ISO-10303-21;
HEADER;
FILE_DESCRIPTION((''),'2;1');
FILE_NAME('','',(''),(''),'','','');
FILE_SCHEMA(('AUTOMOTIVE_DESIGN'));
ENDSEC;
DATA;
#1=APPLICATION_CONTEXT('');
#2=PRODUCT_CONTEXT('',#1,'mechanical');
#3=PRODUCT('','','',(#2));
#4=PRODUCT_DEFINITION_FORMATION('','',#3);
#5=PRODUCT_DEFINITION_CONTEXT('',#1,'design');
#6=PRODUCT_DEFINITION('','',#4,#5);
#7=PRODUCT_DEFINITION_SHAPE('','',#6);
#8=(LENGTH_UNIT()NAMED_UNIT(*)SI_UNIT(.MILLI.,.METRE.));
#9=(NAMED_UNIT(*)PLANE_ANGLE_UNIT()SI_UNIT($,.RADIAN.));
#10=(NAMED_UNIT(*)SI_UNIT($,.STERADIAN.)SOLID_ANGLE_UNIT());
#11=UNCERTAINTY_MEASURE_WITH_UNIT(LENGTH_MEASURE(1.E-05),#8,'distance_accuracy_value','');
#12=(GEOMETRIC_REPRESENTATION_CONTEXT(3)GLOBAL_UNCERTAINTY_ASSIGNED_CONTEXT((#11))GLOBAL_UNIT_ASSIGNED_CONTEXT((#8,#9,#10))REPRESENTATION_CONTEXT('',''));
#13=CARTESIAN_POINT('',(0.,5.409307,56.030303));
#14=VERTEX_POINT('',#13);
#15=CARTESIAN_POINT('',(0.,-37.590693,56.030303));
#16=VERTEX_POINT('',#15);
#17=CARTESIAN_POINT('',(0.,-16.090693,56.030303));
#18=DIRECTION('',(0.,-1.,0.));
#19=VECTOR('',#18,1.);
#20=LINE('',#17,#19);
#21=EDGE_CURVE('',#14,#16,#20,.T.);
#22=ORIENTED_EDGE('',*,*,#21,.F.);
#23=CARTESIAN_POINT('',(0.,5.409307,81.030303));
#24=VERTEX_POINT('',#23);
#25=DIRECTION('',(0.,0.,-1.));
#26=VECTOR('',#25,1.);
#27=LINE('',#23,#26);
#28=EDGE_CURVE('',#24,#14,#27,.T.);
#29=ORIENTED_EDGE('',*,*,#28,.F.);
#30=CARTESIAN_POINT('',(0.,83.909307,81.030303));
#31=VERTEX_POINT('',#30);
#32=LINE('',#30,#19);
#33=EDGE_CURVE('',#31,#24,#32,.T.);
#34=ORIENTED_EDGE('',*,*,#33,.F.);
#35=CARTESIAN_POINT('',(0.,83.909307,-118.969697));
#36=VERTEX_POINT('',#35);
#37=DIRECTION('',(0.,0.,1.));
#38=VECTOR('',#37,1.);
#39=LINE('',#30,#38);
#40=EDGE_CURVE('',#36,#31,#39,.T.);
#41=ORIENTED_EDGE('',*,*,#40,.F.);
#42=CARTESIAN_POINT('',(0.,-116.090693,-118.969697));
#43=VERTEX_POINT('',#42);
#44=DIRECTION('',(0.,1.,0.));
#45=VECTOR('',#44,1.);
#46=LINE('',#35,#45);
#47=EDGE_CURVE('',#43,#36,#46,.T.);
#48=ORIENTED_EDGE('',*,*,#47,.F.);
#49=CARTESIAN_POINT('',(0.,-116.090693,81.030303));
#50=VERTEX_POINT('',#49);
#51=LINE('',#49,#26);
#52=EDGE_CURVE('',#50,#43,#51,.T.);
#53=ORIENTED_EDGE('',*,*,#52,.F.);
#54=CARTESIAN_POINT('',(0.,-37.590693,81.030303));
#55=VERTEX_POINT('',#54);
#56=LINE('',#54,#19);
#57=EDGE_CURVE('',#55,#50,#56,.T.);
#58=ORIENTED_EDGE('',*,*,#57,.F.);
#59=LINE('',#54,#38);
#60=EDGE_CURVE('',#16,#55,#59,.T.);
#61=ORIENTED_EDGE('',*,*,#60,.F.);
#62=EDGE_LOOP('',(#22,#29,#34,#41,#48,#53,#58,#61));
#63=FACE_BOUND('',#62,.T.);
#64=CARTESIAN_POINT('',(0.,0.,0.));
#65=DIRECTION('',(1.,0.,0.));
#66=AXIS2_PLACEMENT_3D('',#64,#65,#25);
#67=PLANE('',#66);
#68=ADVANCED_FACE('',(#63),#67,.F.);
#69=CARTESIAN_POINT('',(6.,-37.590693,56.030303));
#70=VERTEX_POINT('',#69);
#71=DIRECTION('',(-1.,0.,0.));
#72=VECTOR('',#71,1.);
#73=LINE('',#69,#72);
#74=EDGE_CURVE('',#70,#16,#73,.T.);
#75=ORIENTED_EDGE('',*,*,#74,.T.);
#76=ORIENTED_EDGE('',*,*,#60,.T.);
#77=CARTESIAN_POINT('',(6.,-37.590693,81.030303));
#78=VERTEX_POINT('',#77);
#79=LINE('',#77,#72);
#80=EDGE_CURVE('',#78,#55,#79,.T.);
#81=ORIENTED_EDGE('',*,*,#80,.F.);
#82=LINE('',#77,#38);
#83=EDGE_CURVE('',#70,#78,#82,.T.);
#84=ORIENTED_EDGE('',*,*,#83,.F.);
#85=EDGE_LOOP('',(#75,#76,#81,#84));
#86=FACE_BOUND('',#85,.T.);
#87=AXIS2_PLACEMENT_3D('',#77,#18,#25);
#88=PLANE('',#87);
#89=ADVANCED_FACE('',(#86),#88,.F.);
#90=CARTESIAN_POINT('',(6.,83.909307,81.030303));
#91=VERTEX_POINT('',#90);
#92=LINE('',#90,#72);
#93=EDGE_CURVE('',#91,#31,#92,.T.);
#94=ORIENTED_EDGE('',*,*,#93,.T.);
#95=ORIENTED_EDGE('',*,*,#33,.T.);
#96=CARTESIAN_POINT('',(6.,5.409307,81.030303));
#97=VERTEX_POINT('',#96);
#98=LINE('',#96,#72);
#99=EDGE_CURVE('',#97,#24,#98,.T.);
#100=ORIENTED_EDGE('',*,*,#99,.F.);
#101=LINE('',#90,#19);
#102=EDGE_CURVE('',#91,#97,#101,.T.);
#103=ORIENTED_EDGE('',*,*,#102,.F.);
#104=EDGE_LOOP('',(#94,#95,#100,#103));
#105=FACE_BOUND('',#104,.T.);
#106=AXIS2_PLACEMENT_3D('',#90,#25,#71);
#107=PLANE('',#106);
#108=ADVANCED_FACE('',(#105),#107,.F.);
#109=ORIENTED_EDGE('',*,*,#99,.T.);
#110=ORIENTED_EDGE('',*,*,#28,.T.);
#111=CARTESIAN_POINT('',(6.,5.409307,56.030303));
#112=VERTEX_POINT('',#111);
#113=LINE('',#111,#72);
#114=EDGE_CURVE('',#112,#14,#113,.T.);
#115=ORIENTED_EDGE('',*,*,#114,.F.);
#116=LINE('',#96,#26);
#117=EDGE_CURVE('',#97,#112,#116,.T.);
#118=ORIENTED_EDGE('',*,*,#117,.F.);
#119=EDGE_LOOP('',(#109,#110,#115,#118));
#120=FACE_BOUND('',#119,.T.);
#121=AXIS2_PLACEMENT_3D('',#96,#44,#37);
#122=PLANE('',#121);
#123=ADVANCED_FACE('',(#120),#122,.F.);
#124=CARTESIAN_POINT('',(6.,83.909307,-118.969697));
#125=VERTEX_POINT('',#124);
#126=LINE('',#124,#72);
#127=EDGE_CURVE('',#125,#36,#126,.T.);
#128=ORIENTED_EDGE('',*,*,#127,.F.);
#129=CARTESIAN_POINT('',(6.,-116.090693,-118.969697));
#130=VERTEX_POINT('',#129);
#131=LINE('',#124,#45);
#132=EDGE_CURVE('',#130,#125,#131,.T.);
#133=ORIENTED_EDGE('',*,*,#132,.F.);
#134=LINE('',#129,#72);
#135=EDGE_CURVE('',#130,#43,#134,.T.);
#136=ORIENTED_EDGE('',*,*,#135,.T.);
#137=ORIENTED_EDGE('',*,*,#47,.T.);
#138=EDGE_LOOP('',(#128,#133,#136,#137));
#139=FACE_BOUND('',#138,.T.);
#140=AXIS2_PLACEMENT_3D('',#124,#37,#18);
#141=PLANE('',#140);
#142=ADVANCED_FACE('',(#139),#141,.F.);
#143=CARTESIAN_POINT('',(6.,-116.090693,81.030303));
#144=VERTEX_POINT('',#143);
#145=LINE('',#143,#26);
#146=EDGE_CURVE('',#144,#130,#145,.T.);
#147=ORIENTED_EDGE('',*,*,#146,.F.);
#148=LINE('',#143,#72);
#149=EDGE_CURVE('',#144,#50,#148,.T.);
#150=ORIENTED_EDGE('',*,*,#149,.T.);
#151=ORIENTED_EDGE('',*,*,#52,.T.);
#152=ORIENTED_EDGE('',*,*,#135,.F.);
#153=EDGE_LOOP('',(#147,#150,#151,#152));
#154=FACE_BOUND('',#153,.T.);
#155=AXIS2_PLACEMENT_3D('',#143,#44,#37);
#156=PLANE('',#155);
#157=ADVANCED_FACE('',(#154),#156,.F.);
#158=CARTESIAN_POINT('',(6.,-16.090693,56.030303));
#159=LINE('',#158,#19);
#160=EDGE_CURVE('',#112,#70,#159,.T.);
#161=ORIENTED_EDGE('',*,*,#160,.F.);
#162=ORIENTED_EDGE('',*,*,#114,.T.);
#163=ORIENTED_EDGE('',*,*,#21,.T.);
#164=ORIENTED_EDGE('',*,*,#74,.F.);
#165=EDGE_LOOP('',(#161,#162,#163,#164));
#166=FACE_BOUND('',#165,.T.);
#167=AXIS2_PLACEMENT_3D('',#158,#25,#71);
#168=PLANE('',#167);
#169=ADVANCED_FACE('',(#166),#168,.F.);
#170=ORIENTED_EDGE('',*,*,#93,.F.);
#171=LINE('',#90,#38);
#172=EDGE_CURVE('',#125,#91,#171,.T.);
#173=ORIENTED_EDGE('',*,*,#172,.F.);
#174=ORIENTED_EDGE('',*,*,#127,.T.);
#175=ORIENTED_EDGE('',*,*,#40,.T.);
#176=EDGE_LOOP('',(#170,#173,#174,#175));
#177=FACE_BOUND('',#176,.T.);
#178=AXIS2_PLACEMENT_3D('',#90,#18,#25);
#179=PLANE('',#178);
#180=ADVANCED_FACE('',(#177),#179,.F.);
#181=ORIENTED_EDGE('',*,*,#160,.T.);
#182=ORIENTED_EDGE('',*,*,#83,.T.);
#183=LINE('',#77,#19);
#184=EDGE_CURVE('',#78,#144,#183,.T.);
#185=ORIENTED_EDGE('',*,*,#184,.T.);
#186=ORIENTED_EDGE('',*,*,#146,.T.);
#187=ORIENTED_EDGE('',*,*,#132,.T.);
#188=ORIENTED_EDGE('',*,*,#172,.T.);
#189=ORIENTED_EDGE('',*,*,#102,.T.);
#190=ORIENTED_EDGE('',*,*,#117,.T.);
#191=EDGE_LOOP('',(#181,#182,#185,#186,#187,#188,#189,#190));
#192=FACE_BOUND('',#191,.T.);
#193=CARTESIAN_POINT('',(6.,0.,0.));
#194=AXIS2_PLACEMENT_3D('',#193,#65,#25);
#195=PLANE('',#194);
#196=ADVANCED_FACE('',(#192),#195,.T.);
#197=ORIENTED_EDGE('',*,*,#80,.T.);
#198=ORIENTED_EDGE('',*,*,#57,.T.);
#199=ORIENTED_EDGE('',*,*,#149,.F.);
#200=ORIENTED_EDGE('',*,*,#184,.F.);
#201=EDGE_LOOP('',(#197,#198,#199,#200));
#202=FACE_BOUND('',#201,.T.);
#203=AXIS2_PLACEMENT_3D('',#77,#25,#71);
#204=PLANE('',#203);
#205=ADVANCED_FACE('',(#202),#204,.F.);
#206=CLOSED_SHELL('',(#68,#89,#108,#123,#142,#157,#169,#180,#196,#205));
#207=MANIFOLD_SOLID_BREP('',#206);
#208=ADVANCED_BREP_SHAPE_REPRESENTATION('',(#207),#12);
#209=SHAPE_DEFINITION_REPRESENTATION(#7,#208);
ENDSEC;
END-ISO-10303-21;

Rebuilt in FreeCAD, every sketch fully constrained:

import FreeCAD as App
import Part
import Sketcher

V = App.Vector

doc = App.newDocument("Part")
body = doc.addObject("PartDesign::Body", "Body")

# Sketch on YZ plane
sketch1 = doc.addObject("Sketcher::SketchObject", "Sketch")
body.addObject(sketch1)
sketch1.AttachmentSupport = (doc.YZ_Plane, [""])
sketch1.MapMode = "FlatFace"
sketch1.addGeometry(Part.LineSegment(V(-37.590693, 81.030303, 0), V(-116.090693, 81.030303, 0)), False)
sketch1.addGeometry(Part.LineSegment(V(-116.090693, 81.030303, 0), V(-116.090693, -118.969697, 0)), False)
sketch1.addGeometry(Part.LineSegment(V(-116.090693, -118.969697, 0), V(83.909307, -118.969697, 0)), False)
sketch1.addGeometry(Part.LineSegment(V(83.909307, -118.969697, 0), V(83.909307, 81.030303, 0)), False)
sketch1.addGeometry(Part.LineSegment(V(83.909307, 81.030303, 0), V(5.409307, 81.030303, 0)), False)
sketch1.addGeometry(Part.LineSegment(V(5.409307, 81.030303, 0), V(5.409307, 56.030303, 0)), False)
sketch1.addGeometry(Part.LineSegment(V(5.409307, 56.030303, 0), V(-37.590693, 56.030303, 0)), False)
sketch1.addGeometry(Part.LineSegment(V(-37.590693, 56.030303, 0), V(-37.590693, 81.030303, 0)), False)
sketch1.addConstraint(Sketcher.Constraint("Coincident", 0, 2, 1, 1))
sketch1.addConstraint(Sketcher.Constraint("Coincident", 1, 2, 2, 1))
sketch1.addConstraint(Sketcher.Constraint("Coincident", 2, 2, 3, 1))
sketch1.addConstraint(Sketcher.Constraint("Coincident", 3, 2, 4, 1))
sketch1.addConstraint(Sketcher.Constraint("Coincident", 4, 2, 5, 1))
sketch1.addConstraint(Sketcher.Constraint("Coincident", 5, 2, 6, 1))
sketch1.addConstraint(Sketcher.Constraint("Coincident", 6, 2, 7, 1))
sketch1.addConstraint(Sketcher.Constraint("Coincident", 7, 2, 0, 1))
sketch1.addConstraint(Sketcher.Constraint("Horizontal", 0))
sketch1.addConstraint(Sketcher.Constraint("Vertical", 1))
sketch1.addConstraint(Sketcher.Constraint("Horizontal", 2))
sketch1.addConstraint(Sketcher.Constraint("Vertical", 3))
sketch1.addConstraint(Sketcher.Constraint("Horizontal", 4))
sketch1.addConstraint(Sketcher.Constraint("Vertical", 5))
sketch1.addConstraint(Sketcher.Constraint("Horizontal", 6))
sketch1.addConstraint(Sketcher.Constraint("Vertical", 7))
sketch1.addConstraint(Sketcher.Constraint("Horizontal", 0, 2, 3, 2))
sketch1.addConstraint(Sketcher.Constraint("Equal", 0, 4))
sketch1.addConstraint(Sketcher.Constraint("Equal", 2, 1))
sketch1.addConstraint(Sketcher.Constraint("DistanceX", 2, 1, 2, 2, 200.0))
sketch1.addConstraint(Sketcher.Constraint("DistanceX", 6, 2, 6, 1, 43.0))
sketch1.addConstraint(Sketcher.Constraint("DistanceY", 5, 2, 5, 1, 25.0))
sketch1.addConstraint(Sketcher.Constraint("DistanceX", 0, 2, -1, 1, 116.090693))
sketch1.addConstraint(Sketcher.Constraint("DistanceY", -1, 1, 0, 2, 81.030303))
pad1 = doc.addObject("PartDesign::Pad", "Pad")
body.addObject(pad1)
pad1.Profile = sketch1
pad1.Length = 6

doc.recompute()
